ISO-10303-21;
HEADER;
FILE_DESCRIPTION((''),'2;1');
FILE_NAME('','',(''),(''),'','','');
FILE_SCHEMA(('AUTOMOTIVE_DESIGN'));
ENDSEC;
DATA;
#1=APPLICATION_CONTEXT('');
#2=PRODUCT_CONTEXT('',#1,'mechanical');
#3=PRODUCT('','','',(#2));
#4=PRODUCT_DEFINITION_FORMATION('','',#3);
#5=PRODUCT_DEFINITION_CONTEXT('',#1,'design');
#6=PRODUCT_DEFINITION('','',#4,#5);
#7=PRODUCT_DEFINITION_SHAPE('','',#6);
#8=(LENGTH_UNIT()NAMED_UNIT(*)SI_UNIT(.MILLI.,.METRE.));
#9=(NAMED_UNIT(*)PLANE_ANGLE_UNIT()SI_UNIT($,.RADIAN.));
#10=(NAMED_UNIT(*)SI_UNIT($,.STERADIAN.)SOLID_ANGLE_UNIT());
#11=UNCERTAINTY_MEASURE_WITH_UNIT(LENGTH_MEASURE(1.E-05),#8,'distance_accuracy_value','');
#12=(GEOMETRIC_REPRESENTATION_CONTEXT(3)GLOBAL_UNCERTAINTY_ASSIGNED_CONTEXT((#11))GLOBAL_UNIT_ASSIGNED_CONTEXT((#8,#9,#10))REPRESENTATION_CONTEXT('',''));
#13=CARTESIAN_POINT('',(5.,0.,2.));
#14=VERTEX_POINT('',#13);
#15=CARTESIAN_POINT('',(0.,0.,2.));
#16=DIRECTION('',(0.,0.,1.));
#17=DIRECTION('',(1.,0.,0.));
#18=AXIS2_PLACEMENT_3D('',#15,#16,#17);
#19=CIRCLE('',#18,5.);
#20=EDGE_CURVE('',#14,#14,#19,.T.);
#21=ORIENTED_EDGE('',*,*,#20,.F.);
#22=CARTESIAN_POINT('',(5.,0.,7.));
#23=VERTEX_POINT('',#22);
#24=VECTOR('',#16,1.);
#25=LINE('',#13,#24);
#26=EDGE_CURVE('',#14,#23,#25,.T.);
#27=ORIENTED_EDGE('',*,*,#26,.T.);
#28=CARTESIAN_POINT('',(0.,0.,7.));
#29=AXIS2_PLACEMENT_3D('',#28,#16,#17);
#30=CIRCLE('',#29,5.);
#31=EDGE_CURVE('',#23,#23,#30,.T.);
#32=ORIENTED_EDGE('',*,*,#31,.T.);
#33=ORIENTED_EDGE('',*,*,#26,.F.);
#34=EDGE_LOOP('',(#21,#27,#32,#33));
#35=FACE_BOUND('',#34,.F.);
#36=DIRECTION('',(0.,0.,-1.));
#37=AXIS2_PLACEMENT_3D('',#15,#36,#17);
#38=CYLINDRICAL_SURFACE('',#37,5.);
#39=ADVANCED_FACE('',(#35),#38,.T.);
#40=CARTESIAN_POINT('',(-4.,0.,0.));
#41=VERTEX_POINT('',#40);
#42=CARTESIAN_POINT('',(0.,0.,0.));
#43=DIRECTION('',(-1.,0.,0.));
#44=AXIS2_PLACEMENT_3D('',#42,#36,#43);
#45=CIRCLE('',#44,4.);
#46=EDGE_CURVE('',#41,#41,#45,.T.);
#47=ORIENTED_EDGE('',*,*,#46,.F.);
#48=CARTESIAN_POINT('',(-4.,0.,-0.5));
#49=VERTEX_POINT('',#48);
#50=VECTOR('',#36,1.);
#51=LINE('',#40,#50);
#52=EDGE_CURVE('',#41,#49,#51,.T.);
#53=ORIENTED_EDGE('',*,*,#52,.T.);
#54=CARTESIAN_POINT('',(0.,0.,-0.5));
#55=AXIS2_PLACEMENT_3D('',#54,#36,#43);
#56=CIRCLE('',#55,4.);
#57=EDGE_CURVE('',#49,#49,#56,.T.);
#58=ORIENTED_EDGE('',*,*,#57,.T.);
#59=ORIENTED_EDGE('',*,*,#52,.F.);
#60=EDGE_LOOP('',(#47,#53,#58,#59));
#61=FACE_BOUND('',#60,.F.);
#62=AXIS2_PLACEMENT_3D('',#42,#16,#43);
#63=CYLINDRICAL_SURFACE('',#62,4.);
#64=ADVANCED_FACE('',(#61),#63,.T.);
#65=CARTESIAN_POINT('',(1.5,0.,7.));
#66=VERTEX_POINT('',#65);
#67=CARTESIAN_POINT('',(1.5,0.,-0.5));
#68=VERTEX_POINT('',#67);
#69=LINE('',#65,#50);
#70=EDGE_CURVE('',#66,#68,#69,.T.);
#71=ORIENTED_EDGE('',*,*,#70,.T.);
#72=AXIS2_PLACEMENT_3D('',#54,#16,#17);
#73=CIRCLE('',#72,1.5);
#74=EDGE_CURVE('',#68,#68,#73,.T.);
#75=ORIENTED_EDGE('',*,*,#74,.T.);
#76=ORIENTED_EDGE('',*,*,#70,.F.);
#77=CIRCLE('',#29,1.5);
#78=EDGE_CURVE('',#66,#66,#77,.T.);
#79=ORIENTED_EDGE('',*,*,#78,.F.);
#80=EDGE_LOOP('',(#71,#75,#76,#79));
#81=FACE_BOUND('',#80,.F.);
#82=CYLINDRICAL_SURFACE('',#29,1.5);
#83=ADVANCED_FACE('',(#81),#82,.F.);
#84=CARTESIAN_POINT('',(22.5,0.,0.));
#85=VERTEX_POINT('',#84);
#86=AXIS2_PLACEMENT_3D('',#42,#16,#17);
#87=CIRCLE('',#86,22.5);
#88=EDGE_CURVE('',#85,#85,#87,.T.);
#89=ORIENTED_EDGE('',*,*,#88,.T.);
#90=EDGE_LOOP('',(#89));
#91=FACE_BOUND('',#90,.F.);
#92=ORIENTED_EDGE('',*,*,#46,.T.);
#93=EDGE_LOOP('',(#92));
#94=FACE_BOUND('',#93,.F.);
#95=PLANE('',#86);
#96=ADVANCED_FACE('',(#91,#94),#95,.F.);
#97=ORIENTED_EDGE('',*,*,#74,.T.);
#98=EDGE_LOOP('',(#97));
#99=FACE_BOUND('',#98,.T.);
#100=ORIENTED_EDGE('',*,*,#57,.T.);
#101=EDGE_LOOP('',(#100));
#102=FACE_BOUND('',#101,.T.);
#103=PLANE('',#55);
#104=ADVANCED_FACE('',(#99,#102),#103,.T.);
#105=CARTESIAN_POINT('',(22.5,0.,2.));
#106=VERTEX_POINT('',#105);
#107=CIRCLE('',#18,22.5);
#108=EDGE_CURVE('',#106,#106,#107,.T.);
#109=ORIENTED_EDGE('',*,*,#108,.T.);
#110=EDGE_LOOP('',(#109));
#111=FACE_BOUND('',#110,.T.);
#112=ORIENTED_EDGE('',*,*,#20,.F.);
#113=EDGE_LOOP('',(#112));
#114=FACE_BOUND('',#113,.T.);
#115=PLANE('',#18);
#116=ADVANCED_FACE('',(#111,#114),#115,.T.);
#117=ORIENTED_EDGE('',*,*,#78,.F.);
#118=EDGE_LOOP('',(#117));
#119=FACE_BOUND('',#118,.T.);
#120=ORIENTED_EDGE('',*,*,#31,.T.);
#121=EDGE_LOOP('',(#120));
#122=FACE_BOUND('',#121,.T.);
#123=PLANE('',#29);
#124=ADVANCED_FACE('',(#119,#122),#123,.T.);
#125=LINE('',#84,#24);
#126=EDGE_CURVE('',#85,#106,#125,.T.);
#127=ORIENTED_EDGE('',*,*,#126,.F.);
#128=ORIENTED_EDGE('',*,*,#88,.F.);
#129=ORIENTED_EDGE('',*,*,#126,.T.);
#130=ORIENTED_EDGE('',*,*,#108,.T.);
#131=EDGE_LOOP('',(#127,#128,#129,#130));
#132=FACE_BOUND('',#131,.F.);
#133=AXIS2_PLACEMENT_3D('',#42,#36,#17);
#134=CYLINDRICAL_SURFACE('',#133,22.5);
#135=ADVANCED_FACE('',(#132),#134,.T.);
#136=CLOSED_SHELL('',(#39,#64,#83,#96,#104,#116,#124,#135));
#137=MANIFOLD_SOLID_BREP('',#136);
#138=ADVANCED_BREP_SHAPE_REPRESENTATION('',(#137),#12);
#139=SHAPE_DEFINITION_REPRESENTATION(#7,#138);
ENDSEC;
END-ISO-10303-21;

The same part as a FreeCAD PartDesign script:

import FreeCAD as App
import Part
import Sketcher
from FreeCAD import Vector

doc = App.newDocument("Part")
body = doc.addObject("PartDesign::Body", "Body")

# Sketch on XY plane
sketch1 = doc.addObject("Sketcher::SketchObject", "Sketch")
body.addObject(sketch1)
sketch1.AttachmentSupport = (doc.XY_Plane, [""])
sketch1.MapMode = "FlatFace"
sketch1.addGeometry(Part.Circle(Vector(0, 0, 0), Vector(0, 0, 1), 22.5), False)
sketch1.addConstraint(Sketcher.Constraint("Coincident", 0, 3, -1, 1))
sketch1.addConstraint(Sketcher.Constraint("Diameter", 0, 45.0))
pad1 = doc.addObject("PartDesign::Pad", "Pad")
body.addObject(pad1)
pad1.Profile = sketch1
pad1.Length = 2

# Sketch on XY plane
sketch2 = doc.addObject("Sketcher::SketchObject", "Sketch001")
body.addObject(sketch2)
sketch2.AttachmentSupport = (doc.XY_Plane, [""])
sketch2.MapMode = "FlatFace"
sketch2.AttachmentOffset = App.Placement(Vector(0, 0, 2), App.Rotation())
sketch2.addGeometry(Part.Circle(Vector(0, 0, 0), Vector(0, 0, 1), 5), False)
sketch2.addConstraint(Sketcher.Constraint("Coincident", 0, 3, -1, 1))
sketch2.addConstraint(Sketcher.Constraint("Diameter", 0, 10.0))
pad2 = doc.addObject("PartDesign::Pad", "Pad001")
body.addObject(pad2)
pad2.Profile = sketch2
pad2.Length = 5

# Sketch on XY plane
sketch3 = doc.addObject("Sketcher::SketchObject", "Sketch002")
body.addObject(sketch3)
sketch3.AttachmentSupport = (doc.XY_Plane, [""])
sketch3.MapMode = "FlatFace"
sketch3.addGeometry(Part.Circle(Vector(0, 0, 0), Vector(0, 0, 1), 4), False)
sketch3.addConstraint(Sketcher.Constraint("Coincident", 0, 3, -1, 1))
sketch3.addConstraint(Sketcher.Constraint("Diameter", 0, 8.0))
pad3 = doc.addObject("PartDesign::Pad", "Pad002")
body.addObject(pad3)
pad3.Profile = sketch3
pad3.Length = 0.5
pad3.Reversed = True

# Sketch on XY plane
sketch4 = doc.addObject("Sketcher::SketchObject", "Sketch003")
body.addObject(sketch4)
sketch4.AttachmentSupport = (doc.XY_Plane, [""])
sketch4.MapMode = "FlatFace"
sketch4.AttachmentOffset = App.Placement(Vector(0, 0, 7), App.Rotation())
sketch4.addGeometry(Part.Circle(Vector(0, 0, 0), Vector(0, 0, 1), 1.5), False)
sketch4.addConstraint(Sketcher.Constraint("Coincident", 0, 3, -1, 1))
sketch4.addConstraint(Sketcher.Constraint("Diameter", 0, 3.0))
pocket1 = doc.addObject("PartDesign::Pocket", "Pocket")
body.addObject(pocket1)
pocket1.Profile = sketch4
pocket1.Length = 12

doc.recompute()
